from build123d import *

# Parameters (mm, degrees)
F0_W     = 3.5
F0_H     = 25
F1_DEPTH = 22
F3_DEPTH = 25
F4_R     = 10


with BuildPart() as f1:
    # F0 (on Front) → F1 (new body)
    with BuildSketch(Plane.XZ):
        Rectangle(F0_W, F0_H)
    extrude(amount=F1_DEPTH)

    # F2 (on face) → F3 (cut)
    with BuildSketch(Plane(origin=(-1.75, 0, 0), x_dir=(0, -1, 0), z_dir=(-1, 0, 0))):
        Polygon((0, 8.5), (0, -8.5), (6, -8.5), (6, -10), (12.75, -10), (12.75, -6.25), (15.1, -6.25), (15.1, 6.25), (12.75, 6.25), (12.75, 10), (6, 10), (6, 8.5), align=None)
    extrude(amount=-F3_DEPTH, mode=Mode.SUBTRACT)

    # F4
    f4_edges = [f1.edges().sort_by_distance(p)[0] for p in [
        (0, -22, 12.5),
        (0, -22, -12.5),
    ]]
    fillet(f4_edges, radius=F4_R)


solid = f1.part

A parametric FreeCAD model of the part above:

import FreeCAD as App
import Part
import Sketcher


def edges_at(feature, points):
    """Names of the edges that pass closest to the given points."""
    edges = feature.Shape.Edges
    near = lambda p: min(range(len(edges)), key=lambda i: edges[i].distToShape(Part.Vertex(*p))[0])
    return sorted({f"Edge{near(p) + 1}" for p in points})

doc = App.newDocument("Part")
body = doc.addObject("PartDesign::Body", "Body")

# Sketch on XZ plane
sketch1 = body.newObject("Sketcher::SketchObject", "Sketch")
sketch1.AttachmentSupport = (doc.getObject("XZ_Plane"), [""])
sketch1.MapMode = "FlatFace"
sketch1.addGeometry([
    Part.LineSegment(App.Vector(-1.75, 12.5, 0), App.Vector(-1.75, -12.5, 0)),
    Part.LineSegment(App.Vector(-1.75, -12.5, 0), App.Vector(1.75, -12.5, 0)),
    Part.LineSegment(App.Vector(1.75, -12.5, 0), App.Vector(1.75, 12.5, 0)),
    Part.LineSegment(App.Vector(1.75, 12.5, 0), App.Vector(-1.75, 12.5, 0)),
], False)
sketch1.addConstraint([
    Sketcher.Constraint("Coincident", 0, 2, 1, 1),
    Sketcher.Constraint("Coincident", 1, 2, 2, 1),
    Sketcher.Constraint("Coincident", 2, 2, 3, 1),
    Sketcher.Constraint("Coincident", 3, 2, 0, 1),
    Sketcher.Constraint("Vertical", 0),
    Sketcher.Constraint("Horizontal", 1),
    Sketcher.Constraint("Vertical", 2),
    Sketcher.Constraint("Horizontal", 3),
    Sketcher.Constraint("Symmetric", 0, 2, 2, 2, -1, 1),
    Sketcher.Constraint("DistanceY", 0, 2, 0, 1, 25.0),
    Sketcher.Constraint("DistanceX", 1, 1, 1, 2, 3.5),
])
pad1 = body.newObject("PartDesign::Pad", "Pad")
pad1.Profile = sketch1
pad1.Length = 22

# Sketch on YZ plane
sketch2 = body.newObject("Sketcher::SketchObject", "Sketch001")
sketch2.AttachmentSupport = (doc.getObject("YZ_Plane"), [""])
sketch2.MapMode = "FlatFace"
sketch2.AttachmentOffset = App.Placement(App.Vector(0, 0, -1.75), App.Rotation())
sketch2.addGeometry([
    Part.LineSegment(App.Vector(0, 8.5, 0), App.Vector(0, -8.5, 0)),  # 0
    Part.LineSegment(App.Vector(0, -8.5, 0), App.Vector(-6, -8.5, 0)),  # 1
    Part.LineSegment(App.Vector(-6, -8.5, 0), App.Vector(-6, -10, 0)),  # 2
    Part.LineSegment(App.Vector(-6, -10, 0), App.Vector(-12.75, -10, 0)),  # 3
    Part.LineSegment(App.Vector(-12.75, -10, 0), App.Vector(-12.75, -6.25, 0)),  # 4
    Part.LineSegment(App.Vector(-12.75, -6.25, 0), App.Vector(-15.1, -6.25, 0)),  # 5
    Part.LineSegment(App.Vector(-15.1, -6.25, 0), App.Vector(-15.1, 6.25, 0)),  # 6
    Part.LineSegment(App.Vector(-15.1, 6.25, 0), App.Vector(-12.75, 6.25, 0)),  # 7
    Part.LineSegment(App.Vector(-12.75, 6.25, 0), App.Vector(-12.75, 10, 0)),  # 8
    Part.LineSegment(App.Vector(-12.75, 10, 0), App.Vector(-6, 10, 0)),  # 9
    Part.LineSegment(App.Vector(-6, 10, 0), App.Vector(-6, 8.5, 0)),  # 10
    Part.LineSegment(App.Vector(-6, 8.5, 0), App.Vector(0, 8.5, 0)),  # 11
], False)
sketch2.addConstraint([
    Sketcher.Constraint("Coincident", 0, 2, 1, 1),
    Sketcher.Constraint("Coincident", 1, 2, 2, 1),
    Sketcher.Constraint("Coincident", 2, 2, 3, 1),
    Sketcher.Constraint("Coincident", 3, 2, 4, 1),
    Sketcher.Constraint("Coincident", 4, 2, 5, 1),
    Sketcher.Constraint("Coincident", 5, 2, 6, 1),
    Sketcher.Constraint("Coincident", 6, 2, 7, 1),
    Sketcher.Constraint("Coincident", 7, 2, 8, 1),
    Sketcher.Constraint("Coincident", 8, 2, 9, 1),
    Sketcher.Constraint("Coincident", 9, 2, 10, 1),
    Sketcher.Constraint("Coincident", 10, 2, 11, 1),
    Sketcher.Constraint("Coincident", 11, 2, 0, 1),
    Sketcher.Constraint("Vertical", 0),
    Sketcher.Constraint("Horizontal", 1),
    Sketcher.Constraint("Vertical", 2),
    Sketcher.Constraint("Horizontal", 3),
    Sketcher.Constraint("Vertical", 4),
    Sketcher.Constraint("Horizontal", 5),
    Sketcher.Constraint("Vertical", 6),
    Sketcher.Constraint("Horizontal", 7),
    Sketcher.Constraint("Vertical", 8),
    Sketcher.Constraint("Horizontal", 9),
    Sketcher.Constraint("Vertical", 10),
    Sketcher.Constraint("Horizontal", 11),
    Sketcher.Constraint("Symmetric", 0, 2, 11, 2, -1, 1),
    Sketcher.Constraint("Symmetric", 4, 2, 7, 2, -1),
    Sketcher.Constraint("Symmetric", 2, 2, 9, 2, -1),
    Sketcher.Constraint("DistanceX", 1, 2, 1, 1, 6.0),
    Sketcher.Constraint("DistanceY", 0, 2, 0, 1, 17.0),
    Sketcher.Constraint("DistanceY", 2, 2, 2, 1, 1.5),
    Sketcher.Constraint("DistanceY", 6, 1, 6, 2, 12.5),
    Sketcher.Constraint("DistanceX", 3, 2, 3, 1, 6.75),
    Sketcher.Constraint("DistanceX", 5, 2, 5, 1, 2.35),
])
pocket1 = body.newObject("PartDesign::Pocket", "Pocket")
pocket1.Profile = sketch2
pocket1.Length = 25
pocket1.Reversed = True
doc.recompute()

fillet = body.newObject("PartDesign::Fillet", "Fillet")
fillet.Base = (pocket1, edges_at(pocket1, [(0, -22, 12.5), (0, -22, -12.5)]))
fillet.Radius = 10

doc.recompute()
